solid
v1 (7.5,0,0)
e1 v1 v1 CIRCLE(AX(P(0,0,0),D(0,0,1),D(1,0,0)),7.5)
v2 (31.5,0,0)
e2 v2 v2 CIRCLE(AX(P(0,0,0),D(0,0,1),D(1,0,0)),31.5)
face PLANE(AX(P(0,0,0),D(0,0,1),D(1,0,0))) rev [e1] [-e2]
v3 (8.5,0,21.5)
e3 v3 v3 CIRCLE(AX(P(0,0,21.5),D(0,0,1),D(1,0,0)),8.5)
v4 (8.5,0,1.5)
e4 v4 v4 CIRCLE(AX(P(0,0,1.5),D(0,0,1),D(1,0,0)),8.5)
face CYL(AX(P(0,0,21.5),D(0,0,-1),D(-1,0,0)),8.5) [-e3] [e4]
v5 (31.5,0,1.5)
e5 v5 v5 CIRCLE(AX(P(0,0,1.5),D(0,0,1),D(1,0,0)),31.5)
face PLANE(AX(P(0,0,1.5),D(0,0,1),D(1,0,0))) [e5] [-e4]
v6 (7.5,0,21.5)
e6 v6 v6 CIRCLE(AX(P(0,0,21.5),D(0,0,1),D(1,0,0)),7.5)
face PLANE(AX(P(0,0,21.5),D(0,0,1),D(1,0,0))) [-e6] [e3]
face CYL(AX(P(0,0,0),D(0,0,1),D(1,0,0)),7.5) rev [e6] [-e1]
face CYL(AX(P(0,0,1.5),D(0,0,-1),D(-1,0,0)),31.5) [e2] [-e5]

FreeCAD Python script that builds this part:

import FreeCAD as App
import Part
import Sketcher

V = App.Vector

doc = App.newDocument("Part")
params = doc.addObject("Spreadsheet::Sheet", "Params")
for row, (alias, value) in enumerate([
    ("sketch1_diameter", "63 mm"),
    ("pad1_length", "1.5 mm"),
    ("sketch2_diameter", "17 mm"),
    ("pad2_length", "20 mm"),
    ("sketch3_diameter", "15 mm"),
], start=1):
    params.set(f"A{row}", alias)
    params.set(f"B{row}", "=" + value)
    params.setAlias(f"B{row}", alias)

body = doc.addObject("PartDesign::Body", "Body")

# Sketch on XY plane
sketch1 = body.newObject("Sketcher::SketchObject", "Sketch")
sketch1.AttachmentSupport = (doc.getObject("XY_Plane"), [""])
sketch1.MapMode = "FlatFace"
sketch1.addGeometry(Part.Circle(V(0, 0, 0), V(0, 0, 1), 32), False)
sketch1.addConstraint(Sketcher.Constraint("Coincident", 0, 3, -1, 1))
sketch1.addConstraint(Sketcher.Constraint("Diameter", 0, 63.0))
sketch1.setExpression("Constraints[1]", "Params.sketch1_diameter")
pad1 = body.newObject("PartDesign::Pad", "Pad")
pad1.Profile = sketch1
pad1.setExpression("Length", "Params.pad1_length")

# Sketch on XY plane
sketch2 = body.newObject("Sketcher::SketchObject", "Sketch001")
sketch2.AttachmentSupport = (doc.getObject("XY_Plane"), [""])
sketch2.MapMode = "FlatFace"
sketch2.AttachmentOffset = App.Placement(V(0, 0, 1.5), App.Rotation())
sketch2.addGeometry(Part.Circle(V(0, 0, 0), V(0, 0, 1), 8), False)
sketch2.addConstraint(Sketcher.Constraint("Coincident", 0, 3, -1, 1))
sketch2.addConstraint(Sketcher.Constraint("Diameter", 0, 17.0))
sketch2.setExpression("Constraints[1]", "Params.sketch2_diameter")
pad2 = body.newObject("PartDesign::Pad", "Pad001")
pad2.Profile = sketch2
pad2.setExpression("Length", "Params.pad2_length")

# Sketch on XY plane
sketch3 = body.newObject("Sketcher::SketchObject", "Sketch002")
sketch3.AttachmentSupport = (doc.getObject("XY_Plane"), [""])
sketch3.MapMode = "FlatFace"
sketch3.AttachmentOffset = App.Placement(V(0, 0, 21.5), App.Rotation())
sketch3.addGeometry(Part.Circle(V(0, 0, 0), V(0, 0, 1), 8), False)
sketch3.addConstraint(Sketcher.Constraint("Coincident", 0, 3, -1, 1))
sketch3.addConstraint(Sketcher.Constraint("Diameter", 0, 15.0))
sketch3.setExpression("Constraints[1]", "Params.sketch3_diameter")
pocket1 = body.newObject("PartDesign::Pocket", "Pocket")
pocket1.Profile = sketch3
pocket1.Type = "ThroughAll"
pocket1.Midplane = True

doc.recompute()
